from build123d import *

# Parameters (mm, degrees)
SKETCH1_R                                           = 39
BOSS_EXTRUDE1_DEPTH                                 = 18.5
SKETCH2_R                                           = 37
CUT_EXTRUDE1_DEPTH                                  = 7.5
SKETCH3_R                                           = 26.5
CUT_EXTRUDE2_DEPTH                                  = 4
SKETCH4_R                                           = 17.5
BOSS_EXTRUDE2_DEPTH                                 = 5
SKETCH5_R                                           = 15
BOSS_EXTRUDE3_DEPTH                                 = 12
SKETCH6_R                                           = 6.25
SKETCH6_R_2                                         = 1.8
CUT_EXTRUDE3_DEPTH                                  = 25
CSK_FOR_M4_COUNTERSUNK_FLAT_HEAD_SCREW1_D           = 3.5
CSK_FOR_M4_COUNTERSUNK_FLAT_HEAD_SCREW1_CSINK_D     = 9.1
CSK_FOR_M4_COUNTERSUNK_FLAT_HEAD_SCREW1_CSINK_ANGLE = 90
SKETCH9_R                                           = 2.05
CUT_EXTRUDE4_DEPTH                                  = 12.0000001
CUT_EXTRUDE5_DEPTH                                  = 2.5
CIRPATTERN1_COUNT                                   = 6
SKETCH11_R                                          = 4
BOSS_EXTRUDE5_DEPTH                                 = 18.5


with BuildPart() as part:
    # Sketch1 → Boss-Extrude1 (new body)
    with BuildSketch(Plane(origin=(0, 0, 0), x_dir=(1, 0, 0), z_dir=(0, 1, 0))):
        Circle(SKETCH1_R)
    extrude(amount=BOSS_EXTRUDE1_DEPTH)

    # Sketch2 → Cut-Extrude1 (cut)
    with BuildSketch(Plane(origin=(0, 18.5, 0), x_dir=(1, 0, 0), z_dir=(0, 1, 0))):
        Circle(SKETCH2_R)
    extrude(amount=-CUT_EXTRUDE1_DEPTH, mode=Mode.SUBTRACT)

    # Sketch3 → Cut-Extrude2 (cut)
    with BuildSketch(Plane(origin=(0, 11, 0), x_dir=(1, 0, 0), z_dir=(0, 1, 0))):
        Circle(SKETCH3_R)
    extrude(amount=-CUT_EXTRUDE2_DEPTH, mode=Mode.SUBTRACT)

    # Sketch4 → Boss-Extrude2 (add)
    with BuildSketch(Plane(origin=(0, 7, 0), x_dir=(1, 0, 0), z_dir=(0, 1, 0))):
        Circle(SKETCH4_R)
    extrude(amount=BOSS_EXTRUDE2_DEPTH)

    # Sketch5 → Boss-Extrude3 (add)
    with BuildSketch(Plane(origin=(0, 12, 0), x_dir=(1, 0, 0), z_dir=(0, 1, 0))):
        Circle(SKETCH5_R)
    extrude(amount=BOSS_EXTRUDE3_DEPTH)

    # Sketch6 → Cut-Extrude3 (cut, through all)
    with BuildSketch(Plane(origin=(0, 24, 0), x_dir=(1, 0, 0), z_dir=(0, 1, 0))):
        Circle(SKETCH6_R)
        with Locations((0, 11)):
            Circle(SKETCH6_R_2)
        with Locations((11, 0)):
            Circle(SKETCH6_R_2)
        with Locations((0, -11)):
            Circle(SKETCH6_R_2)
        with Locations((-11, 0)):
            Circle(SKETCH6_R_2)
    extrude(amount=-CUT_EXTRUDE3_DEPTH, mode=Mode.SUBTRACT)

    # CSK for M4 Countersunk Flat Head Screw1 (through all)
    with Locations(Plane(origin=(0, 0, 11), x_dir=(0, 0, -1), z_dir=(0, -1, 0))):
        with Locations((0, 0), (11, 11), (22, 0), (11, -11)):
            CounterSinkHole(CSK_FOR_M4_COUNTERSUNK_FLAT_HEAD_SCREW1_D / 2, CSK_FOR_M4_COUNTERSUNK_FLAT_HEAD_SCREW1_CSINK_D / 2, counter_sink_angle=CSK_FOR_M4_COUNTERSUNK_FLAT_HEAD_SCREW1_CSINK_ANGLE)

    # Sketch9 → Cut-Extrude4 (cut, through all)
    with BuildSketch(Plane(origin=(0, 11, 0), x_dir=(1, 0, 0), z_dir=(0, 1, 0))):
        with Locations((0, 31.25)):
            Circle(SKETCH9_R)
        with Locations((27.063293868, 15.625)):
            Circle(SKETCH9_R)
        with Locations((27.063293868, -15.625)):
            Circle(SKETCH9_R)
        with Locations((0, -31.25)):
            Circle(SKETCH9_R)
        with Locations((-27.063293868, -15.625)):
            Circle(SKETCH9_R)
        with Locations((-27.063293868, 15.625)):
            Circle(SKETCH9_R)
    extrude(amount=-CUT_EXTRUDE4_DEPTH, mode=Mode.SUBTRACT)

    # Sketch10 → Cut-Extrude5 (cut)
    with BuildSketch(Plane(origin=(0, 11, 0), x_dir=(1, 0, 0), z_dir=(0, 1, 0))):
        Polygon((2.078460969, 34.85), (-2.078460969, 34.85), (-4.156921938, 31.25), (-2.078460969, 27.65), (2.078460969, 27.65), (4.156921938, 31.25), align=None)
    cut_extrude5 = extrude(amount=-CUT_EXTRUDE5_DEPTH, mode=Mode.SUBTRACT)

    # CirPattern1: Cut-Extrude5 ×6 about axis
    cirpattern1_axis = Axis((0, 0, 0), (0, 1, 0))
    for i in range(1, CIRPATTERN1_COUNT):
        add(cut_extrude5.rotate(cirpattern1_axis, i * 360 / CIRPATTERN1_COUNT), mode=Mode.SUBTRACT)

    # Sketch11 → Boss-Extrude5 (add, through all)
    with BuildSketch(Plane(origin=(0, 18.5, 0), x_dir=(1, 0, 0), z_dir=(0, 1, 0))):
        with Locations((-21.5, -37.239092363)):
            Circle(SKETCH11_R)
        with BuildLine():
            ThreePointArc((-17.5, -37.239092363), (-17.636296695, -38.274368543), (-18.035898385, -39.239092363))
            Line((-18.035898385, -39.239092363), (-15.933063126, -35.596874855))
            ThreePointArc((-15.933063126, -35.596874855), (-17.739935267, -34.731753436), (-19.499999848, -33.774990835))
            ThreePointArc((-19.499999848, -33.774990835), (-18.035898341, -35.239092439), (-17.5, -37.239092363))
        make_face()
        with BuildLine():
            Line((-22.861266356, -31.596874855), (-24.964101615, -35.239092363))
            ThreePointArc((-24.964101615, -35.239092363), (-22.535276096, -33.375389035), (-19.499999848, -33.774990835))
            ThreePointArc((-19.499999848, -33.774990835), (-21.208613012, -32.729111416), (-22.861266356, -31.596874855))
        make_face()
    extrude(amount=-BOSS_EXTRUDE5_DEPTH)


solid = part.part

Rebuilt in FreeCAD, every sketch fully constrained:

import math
import FreeCAD as App
import Part
import Sketcher

V = App.Vector
Q = App.Units.Quantity


def add_polygon(sketch, points):
    """Adds a closed chain of lines whose ends are joined by coincident constraints."""
    first, n = sketch.GeometryCount, len(points)
    for a, b in zip(points, points[1:] + points[:1]):
        sketch.addGeometry(Part.LineSegment(App.Vector(*a, 0), App.Vector(*b, 0)), False)
    for i in range(n):
        sketch.addConstraint(Sketcher.Constraint("Coincident", first + i, 2, first + (i + 1) % n, 1))

doc = App.newDocument("Part")
params = doc.addObject("Spreadsheet::Sheet", "Params")
for row, (alias, value) in enumerate([
    ("sketch1_diameter", "78 mm"),
    ("pad1_length", "18.5 mm"),
    ("sketch2_diameter", "74 mm"),
    ("pocket1_length", "7.5 mm"),
    ("sketch3_diameter", "53 mm"),
    ("pocket2_length", "4 mm"),
    ("sketch4_diameter", "35 mm"),
    ("pad2_length", "5 mm"),
    ("sketch5_diameter", "30 mm"),
    ("pad3_length", "12 mm"),
    ("sketch6_diameter", "12.5 mm"),
    ("sketch6_diameter2", "3.6 mm"),
    ("sketch7_diameter", "3.5 mm"),
    ("hole_diameter", "3.5 mm"),
    ("hole_csink_diameter", "9.1 mm"),
    ("sketch8_diameter", "4.1 mm"),
    ("pocket5_length", "2.5 mm"),
    ("sketch10_radius", "4 mm"),
    ("sketch10_radius2", "39 mm"),
    ("pad4_length", "18.5 mm"),
], start=1):
    params.set(f"A{row}", alias)
    params.set(f"B{row}", "=" + value)
    params.setAlias(f"B{row}", alias)

body = doc.addObject("PartDesign::Body", "Body")

# Sketch on XZ plane
sketch1 = body.newObject("Sketcher::SketchObject", "Sketch")
sketch1.AttachmentSupport = (doc.getObject("XZ_Plane"), [""])
sketch1.MapMode = "FlatFace"
sketch1.addGeometry(Part.Circle(V(0, 0, 0), V(0, 0, 1), 39), False)
sketch1.addConstraint(Sketcher.Constraint("Coincident", 0, 3, -1, 1))
sketch1.addConstraint(Sketcher.Constraint("Diameter", 0, 78.0))
sketch1.setExpression("Constraints[1]", "Params.sketch1_diameter")
pad1 = body.newObject("PartDesign::Pad", "Pad")
pad1.Profile = sketch1
pad1.setExpression("Length", "Params.pad1_length")
pad1.Reversed = True

# Sketch on XZ plane
sketch2 = body.newObject("Sketcher::SketchObject", "Sketch001")
sketch2.AttachmentSupport = (doc.getObject("XZ_Plane"), [""])
sketch2.MapMode = "FlatFace"
sketch2.AttachmentOffset = App.Placement(V(0, 0, -18.5), App.Rotation())
sketch2.addGeometry(Part.Circle(V(0, 0, 0), V(0, 0, 1), 37), False)
sketch2.addConstraint(Sketcher.Constraint("Coincident", 0, 3, -1, 1))
sketch2.addConstraint(Sketcher.Constraint("Diameter", 0, 74.0))
sketch2.setExpression("Constraints[1]", "Params.sketch2_diameter")
pocket1 = body.newObject("PartDesign::Pocket", "Pocket")
pocket1.Profile = sketch2
pocket1.setExpression("Length", "Params.pocket1_length")
pocket1.Reversed = True

# Sketch on XZ plane
sketch3 = body.newObject("Sketcher::SketchObject", "Sketch002")
sketch3.AttachmentSupport = (doc.getObject("XZ_Plane"), [""])
sketch3.MapMode = "FlatFace"
sketch3.AttachmentOffset = App.Placement(V(0, 0, -11), App.Rotation())
sketch3.addGeometry(Part.Circle(V(0, 0, 0), V(0, 0, 1), 26.5), False)
sketch3.addConstraint(Sketcher.Constraint("Coincident", 0, 3, -1, 1))
sketch3.addConstraint(Sketcher.Constraint("Diameter", 0, 53.0))
sketch3.setExpression("Constraints[1]", "Params.sketch3_diameter")
pocket2 = body.newObject("PartDesign::Pocket", "Pocket001")
pocket2.Profile = sketch3
pocket2.setExpression("Length", "Params.pocket2_length")
pocket2.Reversed = True

# Sketch on XZ plane
sketch4 = body.newObject("Sketcher::SketchObject", "Sketch003")
sketch4.AttachmentSupport = (doc.getObject("XZ_Plane"), [""])
sketch4.MapMode = "FlatFace"
sketch4.AttachmentOffset = App.Placement(V(0, 0, -7), App.Rotation())
sketch4.addGeometry(Part.Circle(V(0, 0, 0), V(0, 0, 1), 17.5), False)
sketch4.addConstraint(Sketcher.Constraint("Coincident", 0, 3, -1, 1))
sketch4.addConstraint(Sketcher.Constraint("Diameter", 0, 35.0))
sketch4.setExpression("Constraints[1]", "Params.sketch4_diameter")
pad2 = body.newObject("PartDesign::Pad", "Pad001")
pad2.Profile = sketch4
pad2.setExpression("Length", "Params.pad2_length")
pad2.Reversed = True

# Sketch on XZ plane
sketch5 = body.newObject("Sketcher::SketchObject", "Sketch004")
sketch5.AttachmentSupport = (doc.getObject("XZ_Plane"), [""])
sketch5.MapMode = "FlatFace"
sketch5.AttachmentOffset = App.Placement(V(0, 0, -12), App.Rotation())
sketch5.addGeometry(Part.Circle(V(0, 0, 0), V(0, 0, 1), 15), False)
sketch5.addConstraint(Sketcher.Constraint("Coincident", 0, 3, -1, 1))
sketch5.addConstraint(Sketcher.Constraint("Diameter", 0, 30.0))
sketch5.setExpression("Constraints[1]", "Params.sketch5_diameter")
pad3 = body.newObject("PartDesign::Pad", "Pad002")
pad3.Profile = sketch5
pad3.setExpression("Length", "Params.pad3_length")
pad3.Reversed = True

# Sketch on XZ plane
sketch6 = body.newObject("Sketcher::SketchObject", "Sketch005")
sketch6.AttachmentSupport = (doc.getObject("XZ_Plane"), [""])
sketch6.MapMode = "FlatFace"
sketch6.AttachmentOffset = App.Placement(V(0, 0, -24), App.Rotation())
sketch6.addGeometry(Part.Circle(V(0, 0, 0), V(0, 0, 1), 6.25), False)
sketch6.addGeometry(Part.Circle(V(0, -11, 0), V(0, 0, 1), 1.8), False)
sketch6.addGeometry(Part.Circle(V(11, 0, 0), V(0, 0, 1), 1.8), False)
sketch6.addGeometry(Part.Circle(V(0, 11, 0), V(0, 0, 1), 1.8), False)
sketch6.addGeometry(Part.Circle(V(-11, 0, 0), V(0, 0, 1), 1.8), False)
sketch6.addConstraint(Sketcher.Constraint("Coincident", 0, 3, -1, 1))
sketch6.addConstraint(Sketcher.Constraint("Equal", 1, 2))
sketch6.addConstraint(Sketcher.Constraint("Equal", 2, 3))
sketch6.addConstraint(Sketcher.Constraint("Equal", 3, 4))
sketch6.addConstraint(Sketcher.Constraint("Symmetric", 1, 3, 3, 3, -1, 1))
sketch6.addConstraint(Sketcher.Constraint("Symmetric", 2, 3, 4, 3, -1, 1))
sketch6.addConstraint(Sketcher.Constraint("PointOnObject", 1, 3, -2))
sketch6.addConstraint(Sketcher.Constraint("PointOnObject", 2, 3, -1))
sketch6.addConstraint(Sketcher.Constraint("Diameter", 0, 12.5))
sketch6.addConstraint(Sketcher.Constraint("Diameter", 1, 3.6))
sketch6.addConstraint(Sketcher.Constraint("DistanceY", 1, 3, -1, 1, 11.0))
sketch6.addConstraint(Sketcher.Constraint("DistanceX", -1, 1, 2, 3, 11.0))
sketch6.setExpression("Constraints[8]", "Params.sketch6_diameter")
sketch6.setExpression("Constraints[9]", "Params.sketch6_diameter2")
pocket3 = body.newObject("PartDesign::Pocket", "Pocket002")
pocket3.Profile = sketch6
pocket3.Type = "ThroughAll"
pocket3.Reversed = True

# Sketch on XZ plane
sketch7 = body.newObject("Sketcher::SketchObject", "Sketch006")
sketch7.AttachmentSupport = (doc.getObject("XZ_Plane"), [""])
sketch7.MapMode = "FlatFace"
sketch7.addGeometry(Part.Circle(V(0, 11, 0), V(0, 0, 1), 1.75), False)
sketch7.addGeometry(Part.Circle(V(11, 0, 0), V(0, 0, 1), 1.75), False)
sketch7.addGeometry(Part.Circle(V(0, -11, 0), V(0, 0, 1), 1.75), False)
sketch7.addGeometry(Part.Circle(V(-11, 0, 0), V(0, 0, 1), 1.75), False)
sketch7.addConstraint(Sketcher.Constraint("Equal", 0, 1))
sketch7.addConstraint(Sketcher.Constraint("Equal", 1, 2))
sketch7.addConstraint(Sketcher.Constraint("Equal", 2, 3))
sketch7.addConstraint(Sketcher.Constraint("Symmetric", 0, 3, 2, 3, -1, 1))
sketch7.addConstraint(Sketcher.Constraint("Symmetric", 1, 3, 3, 3, -1, 1))
sketch7.addConstraint(Sketcher.Constraint("PointOnObject", 0, 3, -2))
sketch7.addConstraint(Sketcher.Constraint("PointOnObject", 1, 3, -1))
sketch7.addConstraint(Sketcher.Constraint("Diameter", 0, 3.5))
sketch7.addConstraint(Sketcher.Constraint("DistanceY", -1, 1, 0, 3, 11.0))
sketch7.addConstraint(Sketcher.Constraint("DistanceX", -1, 1, 1, 3, 11.0))
sketch7.setExpression("Constraints[7]", "Params.sketch7_diameter")
doc.recompute()
hole = body.newObject("PartDesign::Hole", "Hole")
hole.Profile = sketch7
hole.ThreadType = "None"
hole.setExpression("Diameter", "Params.hole_diameter")
hole.DepthType = "ThroughAll"
hole.HoleCutType = "Countersink"
hole.setExpression("HoleCutDiameter", "Params.hole_csink_diameter")
hole.HoleCutCountersinkAngle = 90

# Sketch on XZ plane
sketch8 = body.newObject("Sketcher::SketchObject", "Sketch007")
sketch8.AttachmentSupport = (doc.getObject("XZ_Plane"), [""])
sketch8.MapMode = "FlatFace"
sketch8.AttachmentOffset = App.Placement(V(0, 0, -11), App.Rotation())
sketch8.addGeometry(Part.Circle(V(0, -31.25, 0), V(0, 0, 1), 2.05), False)
sketch8.addGeometry(Part.Circle(V(27.063294, -15.625, 0), V(0, 0, 1), 2.05), False)
sketch8.addGeometry(Part.Circle(V(27.063294, 15.625, 0), V(0, 0, 1), 2.05), False)
sketch8.addGeometry(Part.Circle(V(0, 31.25, 0), V(0, 0, 1), 2.05), False)
sketch8.addGeometry(Part.Circle(V(-27.063294, 15.625, 0), V(0, 0, 1), 2.05), False)
sketch8.addGeometry(Part.Circle(V(-27.063294, -15.625, 0), V(0, 0, 1), 2.05), False)
sketch8.addConstraint(Sketcher.Constraint("Equal", 0, 1))
sketch8.addConstraint(Sketcher.Constraint("Equal", 1, 2))
sketch8.addConstraint(Sketcher.Constraint("Equal", 2, 3))
sketch8.addConstraint(Sketcher.Constraint("Equal", 3, 4))
sketch8.addConstraint(Sketcher.Constraint("Equal", 4, 5))
sketch8.addConstraint(Sketcher.Constraint("Symmetric", 0, 3, 3, 3, -1, 1))
sketch8.addConstraint(Sketcher.Constraint("Symmetric", 1, 3, 4, 3, -1, 1))
sketch8.addConstraint(Sketcher.Constraint("Symmetric", 2, 3, 5, 3, -1, 1))
sketch8.addConstraint(Sketcher.Constraint("Symmetric", 2, 3, 4, 3, -2))
sketch8.addConstraint(Sketcher.Constraint("PointOnObject", 0, 3, -2))
sketch8.addConstraint(Sketcher.Constraint("Diameter", 0, 4.1))
sketch8.addConstraint(Sketcher.Constraint("DistanceY", 0, 3, 3, 3, 62.5))
sketch8.addConstraint(Sketcher.Constraint("DistanceY", 1, 3, 2, 3, 31.25))
sketch8.addConstraint(Sketcher.Constraint("DistanceX", -1, 1, 1, 3, 27.063294))
sketch8.setExpression("Constraints[10]", "Params.sketch8_diameter")
pocket4 = body.newObject("PartDesign::Pocket", "Pocket003")
pocket4.Profile = sketch8
pocket4.Type = "ThroughAll"
pocket4.Reversed = True

# Sketch on XZ plane
sketch9 = body.newObject("Sketcher::SketchObject", "Sketch008")
sketch9.AttachmentSupport = (doc.getObject("XZ_Plane"), [""])
sketch9.MapMode = "FlatFace"
sketch9.AttachmentOffset = App.Placement(V(0, 0, -11), App.Rotation())
add_polygon(sketch9, [(2.078461, -34.85), (-2.078461, -34.85), (-4.156922, -31.25), (-2.078461, -27.65), (2.078461, -27.65), (4.156922, -31.25)])  # lines 0-5
sketch9.addConstraint(Sketcher.Constraint("Horizontal", 0))
sketch9.addConstraint(Sketcher.Constraint("Horizontal", 3))
sketch9.addConstraint(Sketcher.Constraint("Symmetric", 1, 2, 4, 2, -2))
sketch9.addConstraint(Sketcher.Constraint("Parallel", 1, 4))
sketch9.addConstraint(Sketcher.Constraint("Parallel", 2, 5))
sketch9.addConstraint(Sketcher.Constraint("Vertical", 0, 2, 2, 2))
sketch9.addConstraint(Sketcher.Constraint("Vertical", 3, 2, 5, 2))
sketch9.addConstraint(Sketcher.Constraint("Angle", 1, Q("120 deg")))
sketch9.addConstraint(Sketcher.Constraint("DistanceY", 0, 2, 1, 2, 3.6))
sketch9.addConstraint(Sketcher.Constraint("DistanceY", 0, 2, -1, 1, 34.85))
sketch9.addConstraint(Sketcher.Constraint("DistanceX", 0, 2, 0, 1, 4.156922))
pocket5 = body.newObject("PartDesign::Pocket", "Pocket004")
pocket5.Profile = sketch9
pocket5.setExpression("Length", "Params.pocket5_length")
pocket5.Reversed = True
doc.recompute()

polarpattern = body.newObject("PartDesign::PolarPattern", "PolarPattern")
polarpattern.Originals = [pocket5]
polarpattern.Axis = (doc.getObject("Y_Axis"), [""])
polarpattern.Angle = 360
polarpattern.Occurrences = 6
body.Tip = polarpattern

# Sketch on XZ plane
sketch10 = body.newObject("Sketcher::SketchObject", "Sketch009")
sketch10.AttachmentSupport = (doc.getObject("XZ_Plane"), [""])
sketch10.MapMode = "FlatFace"
sketch10.AttachmentOffset = App.Placement(V(0, 0, -18.5), App.Rotation())
sketch10.addGeometry(Part.ArcOfCircle(Part.Circle(V(-21.5, 37.239092, 0), V(0, 0, 1), 4), math.radians(30), math.radians(210)), False)
sketch10.addGeometry(Part.LineSegment(V(-18.035898, 39.239092, 0), V(-15.933063, 35.596875, 0)), False)
sketch10.addGeometry(Part.ArcOfCircle(Part.Circle(V(0, 0, 0), V(0, 0, 1), 39), math.radians(114.113158), math.radians(120)), False)
sketch10.addGeometry(Part.ArcOfCircle(Part.Circle(V(0, 0, 0), V(0, 0, 1), 39), math.radians(120), math.radians(125.886842)), False)
sketch10.addGeometry(Part.LineSegment(V(-22.861266, 31.596875, 0), V(-24.964102, 35.239092, 0)), False)
sketch10.addConstraint(Sketcher.Constraint("Tangent", 0, 1, 1, 1))
sketch10.addConstraint(Sketcher.Constraint("Coincident", 1, 2, 2, 1))
sketch10.addConstraint(Sketcher.Constraint("Tangent", 2, 2, 3, 1))
sketch10.addConstraint(Sketcher.Constraint("Coincident", 3, 2, 4, 1))
sketch10.addConstraint(Sketcher.Constraint("Tangent", 4, 2, 0, 2))
sketch10.addConstraint(Sketcher.Constraint("Coincident", 2, 3, -1, 1))
sketch10.addConstraint(Sketcher.Constraint("Equal", 2, 3))
sketch10.addConstraint(Sketcher.Constraint("Parallel", 1, 4))
sketch10.addConstraint(Sketcher.Constraint("Equal", 1, 4))
sketch10.addConstraint(Sketcher.Constraint("Radius", 0, 4.0))
sketch10.addConstraint(Sketcher.Constraint("Radius", 2, 39.0))
sketch10.addConstraint(Sketcher.Constraint("Angle", 1, Q("-60 deg")))
sketch10.addConstraint(Sketcher.Constraint("DistanceX", 0, 3, 2, 2, 2.0))
sketch10.addConstraint(Sketcher.Constraint("DistanceX", 0, 3, -1, 1, 21.5))
sketch10.setExpression("Constraints[9]", "Params.sketch10_radius")
sketch10.setExpression("Constraints[10]", "Params.sketch10_radius2")
pad4 = body.newObject("PartDesign::Pad", "Pad003")
pad4.Profile = sketch10
pad4.setExpression("Length", "Params.pad4_length")

doc.recompute()
